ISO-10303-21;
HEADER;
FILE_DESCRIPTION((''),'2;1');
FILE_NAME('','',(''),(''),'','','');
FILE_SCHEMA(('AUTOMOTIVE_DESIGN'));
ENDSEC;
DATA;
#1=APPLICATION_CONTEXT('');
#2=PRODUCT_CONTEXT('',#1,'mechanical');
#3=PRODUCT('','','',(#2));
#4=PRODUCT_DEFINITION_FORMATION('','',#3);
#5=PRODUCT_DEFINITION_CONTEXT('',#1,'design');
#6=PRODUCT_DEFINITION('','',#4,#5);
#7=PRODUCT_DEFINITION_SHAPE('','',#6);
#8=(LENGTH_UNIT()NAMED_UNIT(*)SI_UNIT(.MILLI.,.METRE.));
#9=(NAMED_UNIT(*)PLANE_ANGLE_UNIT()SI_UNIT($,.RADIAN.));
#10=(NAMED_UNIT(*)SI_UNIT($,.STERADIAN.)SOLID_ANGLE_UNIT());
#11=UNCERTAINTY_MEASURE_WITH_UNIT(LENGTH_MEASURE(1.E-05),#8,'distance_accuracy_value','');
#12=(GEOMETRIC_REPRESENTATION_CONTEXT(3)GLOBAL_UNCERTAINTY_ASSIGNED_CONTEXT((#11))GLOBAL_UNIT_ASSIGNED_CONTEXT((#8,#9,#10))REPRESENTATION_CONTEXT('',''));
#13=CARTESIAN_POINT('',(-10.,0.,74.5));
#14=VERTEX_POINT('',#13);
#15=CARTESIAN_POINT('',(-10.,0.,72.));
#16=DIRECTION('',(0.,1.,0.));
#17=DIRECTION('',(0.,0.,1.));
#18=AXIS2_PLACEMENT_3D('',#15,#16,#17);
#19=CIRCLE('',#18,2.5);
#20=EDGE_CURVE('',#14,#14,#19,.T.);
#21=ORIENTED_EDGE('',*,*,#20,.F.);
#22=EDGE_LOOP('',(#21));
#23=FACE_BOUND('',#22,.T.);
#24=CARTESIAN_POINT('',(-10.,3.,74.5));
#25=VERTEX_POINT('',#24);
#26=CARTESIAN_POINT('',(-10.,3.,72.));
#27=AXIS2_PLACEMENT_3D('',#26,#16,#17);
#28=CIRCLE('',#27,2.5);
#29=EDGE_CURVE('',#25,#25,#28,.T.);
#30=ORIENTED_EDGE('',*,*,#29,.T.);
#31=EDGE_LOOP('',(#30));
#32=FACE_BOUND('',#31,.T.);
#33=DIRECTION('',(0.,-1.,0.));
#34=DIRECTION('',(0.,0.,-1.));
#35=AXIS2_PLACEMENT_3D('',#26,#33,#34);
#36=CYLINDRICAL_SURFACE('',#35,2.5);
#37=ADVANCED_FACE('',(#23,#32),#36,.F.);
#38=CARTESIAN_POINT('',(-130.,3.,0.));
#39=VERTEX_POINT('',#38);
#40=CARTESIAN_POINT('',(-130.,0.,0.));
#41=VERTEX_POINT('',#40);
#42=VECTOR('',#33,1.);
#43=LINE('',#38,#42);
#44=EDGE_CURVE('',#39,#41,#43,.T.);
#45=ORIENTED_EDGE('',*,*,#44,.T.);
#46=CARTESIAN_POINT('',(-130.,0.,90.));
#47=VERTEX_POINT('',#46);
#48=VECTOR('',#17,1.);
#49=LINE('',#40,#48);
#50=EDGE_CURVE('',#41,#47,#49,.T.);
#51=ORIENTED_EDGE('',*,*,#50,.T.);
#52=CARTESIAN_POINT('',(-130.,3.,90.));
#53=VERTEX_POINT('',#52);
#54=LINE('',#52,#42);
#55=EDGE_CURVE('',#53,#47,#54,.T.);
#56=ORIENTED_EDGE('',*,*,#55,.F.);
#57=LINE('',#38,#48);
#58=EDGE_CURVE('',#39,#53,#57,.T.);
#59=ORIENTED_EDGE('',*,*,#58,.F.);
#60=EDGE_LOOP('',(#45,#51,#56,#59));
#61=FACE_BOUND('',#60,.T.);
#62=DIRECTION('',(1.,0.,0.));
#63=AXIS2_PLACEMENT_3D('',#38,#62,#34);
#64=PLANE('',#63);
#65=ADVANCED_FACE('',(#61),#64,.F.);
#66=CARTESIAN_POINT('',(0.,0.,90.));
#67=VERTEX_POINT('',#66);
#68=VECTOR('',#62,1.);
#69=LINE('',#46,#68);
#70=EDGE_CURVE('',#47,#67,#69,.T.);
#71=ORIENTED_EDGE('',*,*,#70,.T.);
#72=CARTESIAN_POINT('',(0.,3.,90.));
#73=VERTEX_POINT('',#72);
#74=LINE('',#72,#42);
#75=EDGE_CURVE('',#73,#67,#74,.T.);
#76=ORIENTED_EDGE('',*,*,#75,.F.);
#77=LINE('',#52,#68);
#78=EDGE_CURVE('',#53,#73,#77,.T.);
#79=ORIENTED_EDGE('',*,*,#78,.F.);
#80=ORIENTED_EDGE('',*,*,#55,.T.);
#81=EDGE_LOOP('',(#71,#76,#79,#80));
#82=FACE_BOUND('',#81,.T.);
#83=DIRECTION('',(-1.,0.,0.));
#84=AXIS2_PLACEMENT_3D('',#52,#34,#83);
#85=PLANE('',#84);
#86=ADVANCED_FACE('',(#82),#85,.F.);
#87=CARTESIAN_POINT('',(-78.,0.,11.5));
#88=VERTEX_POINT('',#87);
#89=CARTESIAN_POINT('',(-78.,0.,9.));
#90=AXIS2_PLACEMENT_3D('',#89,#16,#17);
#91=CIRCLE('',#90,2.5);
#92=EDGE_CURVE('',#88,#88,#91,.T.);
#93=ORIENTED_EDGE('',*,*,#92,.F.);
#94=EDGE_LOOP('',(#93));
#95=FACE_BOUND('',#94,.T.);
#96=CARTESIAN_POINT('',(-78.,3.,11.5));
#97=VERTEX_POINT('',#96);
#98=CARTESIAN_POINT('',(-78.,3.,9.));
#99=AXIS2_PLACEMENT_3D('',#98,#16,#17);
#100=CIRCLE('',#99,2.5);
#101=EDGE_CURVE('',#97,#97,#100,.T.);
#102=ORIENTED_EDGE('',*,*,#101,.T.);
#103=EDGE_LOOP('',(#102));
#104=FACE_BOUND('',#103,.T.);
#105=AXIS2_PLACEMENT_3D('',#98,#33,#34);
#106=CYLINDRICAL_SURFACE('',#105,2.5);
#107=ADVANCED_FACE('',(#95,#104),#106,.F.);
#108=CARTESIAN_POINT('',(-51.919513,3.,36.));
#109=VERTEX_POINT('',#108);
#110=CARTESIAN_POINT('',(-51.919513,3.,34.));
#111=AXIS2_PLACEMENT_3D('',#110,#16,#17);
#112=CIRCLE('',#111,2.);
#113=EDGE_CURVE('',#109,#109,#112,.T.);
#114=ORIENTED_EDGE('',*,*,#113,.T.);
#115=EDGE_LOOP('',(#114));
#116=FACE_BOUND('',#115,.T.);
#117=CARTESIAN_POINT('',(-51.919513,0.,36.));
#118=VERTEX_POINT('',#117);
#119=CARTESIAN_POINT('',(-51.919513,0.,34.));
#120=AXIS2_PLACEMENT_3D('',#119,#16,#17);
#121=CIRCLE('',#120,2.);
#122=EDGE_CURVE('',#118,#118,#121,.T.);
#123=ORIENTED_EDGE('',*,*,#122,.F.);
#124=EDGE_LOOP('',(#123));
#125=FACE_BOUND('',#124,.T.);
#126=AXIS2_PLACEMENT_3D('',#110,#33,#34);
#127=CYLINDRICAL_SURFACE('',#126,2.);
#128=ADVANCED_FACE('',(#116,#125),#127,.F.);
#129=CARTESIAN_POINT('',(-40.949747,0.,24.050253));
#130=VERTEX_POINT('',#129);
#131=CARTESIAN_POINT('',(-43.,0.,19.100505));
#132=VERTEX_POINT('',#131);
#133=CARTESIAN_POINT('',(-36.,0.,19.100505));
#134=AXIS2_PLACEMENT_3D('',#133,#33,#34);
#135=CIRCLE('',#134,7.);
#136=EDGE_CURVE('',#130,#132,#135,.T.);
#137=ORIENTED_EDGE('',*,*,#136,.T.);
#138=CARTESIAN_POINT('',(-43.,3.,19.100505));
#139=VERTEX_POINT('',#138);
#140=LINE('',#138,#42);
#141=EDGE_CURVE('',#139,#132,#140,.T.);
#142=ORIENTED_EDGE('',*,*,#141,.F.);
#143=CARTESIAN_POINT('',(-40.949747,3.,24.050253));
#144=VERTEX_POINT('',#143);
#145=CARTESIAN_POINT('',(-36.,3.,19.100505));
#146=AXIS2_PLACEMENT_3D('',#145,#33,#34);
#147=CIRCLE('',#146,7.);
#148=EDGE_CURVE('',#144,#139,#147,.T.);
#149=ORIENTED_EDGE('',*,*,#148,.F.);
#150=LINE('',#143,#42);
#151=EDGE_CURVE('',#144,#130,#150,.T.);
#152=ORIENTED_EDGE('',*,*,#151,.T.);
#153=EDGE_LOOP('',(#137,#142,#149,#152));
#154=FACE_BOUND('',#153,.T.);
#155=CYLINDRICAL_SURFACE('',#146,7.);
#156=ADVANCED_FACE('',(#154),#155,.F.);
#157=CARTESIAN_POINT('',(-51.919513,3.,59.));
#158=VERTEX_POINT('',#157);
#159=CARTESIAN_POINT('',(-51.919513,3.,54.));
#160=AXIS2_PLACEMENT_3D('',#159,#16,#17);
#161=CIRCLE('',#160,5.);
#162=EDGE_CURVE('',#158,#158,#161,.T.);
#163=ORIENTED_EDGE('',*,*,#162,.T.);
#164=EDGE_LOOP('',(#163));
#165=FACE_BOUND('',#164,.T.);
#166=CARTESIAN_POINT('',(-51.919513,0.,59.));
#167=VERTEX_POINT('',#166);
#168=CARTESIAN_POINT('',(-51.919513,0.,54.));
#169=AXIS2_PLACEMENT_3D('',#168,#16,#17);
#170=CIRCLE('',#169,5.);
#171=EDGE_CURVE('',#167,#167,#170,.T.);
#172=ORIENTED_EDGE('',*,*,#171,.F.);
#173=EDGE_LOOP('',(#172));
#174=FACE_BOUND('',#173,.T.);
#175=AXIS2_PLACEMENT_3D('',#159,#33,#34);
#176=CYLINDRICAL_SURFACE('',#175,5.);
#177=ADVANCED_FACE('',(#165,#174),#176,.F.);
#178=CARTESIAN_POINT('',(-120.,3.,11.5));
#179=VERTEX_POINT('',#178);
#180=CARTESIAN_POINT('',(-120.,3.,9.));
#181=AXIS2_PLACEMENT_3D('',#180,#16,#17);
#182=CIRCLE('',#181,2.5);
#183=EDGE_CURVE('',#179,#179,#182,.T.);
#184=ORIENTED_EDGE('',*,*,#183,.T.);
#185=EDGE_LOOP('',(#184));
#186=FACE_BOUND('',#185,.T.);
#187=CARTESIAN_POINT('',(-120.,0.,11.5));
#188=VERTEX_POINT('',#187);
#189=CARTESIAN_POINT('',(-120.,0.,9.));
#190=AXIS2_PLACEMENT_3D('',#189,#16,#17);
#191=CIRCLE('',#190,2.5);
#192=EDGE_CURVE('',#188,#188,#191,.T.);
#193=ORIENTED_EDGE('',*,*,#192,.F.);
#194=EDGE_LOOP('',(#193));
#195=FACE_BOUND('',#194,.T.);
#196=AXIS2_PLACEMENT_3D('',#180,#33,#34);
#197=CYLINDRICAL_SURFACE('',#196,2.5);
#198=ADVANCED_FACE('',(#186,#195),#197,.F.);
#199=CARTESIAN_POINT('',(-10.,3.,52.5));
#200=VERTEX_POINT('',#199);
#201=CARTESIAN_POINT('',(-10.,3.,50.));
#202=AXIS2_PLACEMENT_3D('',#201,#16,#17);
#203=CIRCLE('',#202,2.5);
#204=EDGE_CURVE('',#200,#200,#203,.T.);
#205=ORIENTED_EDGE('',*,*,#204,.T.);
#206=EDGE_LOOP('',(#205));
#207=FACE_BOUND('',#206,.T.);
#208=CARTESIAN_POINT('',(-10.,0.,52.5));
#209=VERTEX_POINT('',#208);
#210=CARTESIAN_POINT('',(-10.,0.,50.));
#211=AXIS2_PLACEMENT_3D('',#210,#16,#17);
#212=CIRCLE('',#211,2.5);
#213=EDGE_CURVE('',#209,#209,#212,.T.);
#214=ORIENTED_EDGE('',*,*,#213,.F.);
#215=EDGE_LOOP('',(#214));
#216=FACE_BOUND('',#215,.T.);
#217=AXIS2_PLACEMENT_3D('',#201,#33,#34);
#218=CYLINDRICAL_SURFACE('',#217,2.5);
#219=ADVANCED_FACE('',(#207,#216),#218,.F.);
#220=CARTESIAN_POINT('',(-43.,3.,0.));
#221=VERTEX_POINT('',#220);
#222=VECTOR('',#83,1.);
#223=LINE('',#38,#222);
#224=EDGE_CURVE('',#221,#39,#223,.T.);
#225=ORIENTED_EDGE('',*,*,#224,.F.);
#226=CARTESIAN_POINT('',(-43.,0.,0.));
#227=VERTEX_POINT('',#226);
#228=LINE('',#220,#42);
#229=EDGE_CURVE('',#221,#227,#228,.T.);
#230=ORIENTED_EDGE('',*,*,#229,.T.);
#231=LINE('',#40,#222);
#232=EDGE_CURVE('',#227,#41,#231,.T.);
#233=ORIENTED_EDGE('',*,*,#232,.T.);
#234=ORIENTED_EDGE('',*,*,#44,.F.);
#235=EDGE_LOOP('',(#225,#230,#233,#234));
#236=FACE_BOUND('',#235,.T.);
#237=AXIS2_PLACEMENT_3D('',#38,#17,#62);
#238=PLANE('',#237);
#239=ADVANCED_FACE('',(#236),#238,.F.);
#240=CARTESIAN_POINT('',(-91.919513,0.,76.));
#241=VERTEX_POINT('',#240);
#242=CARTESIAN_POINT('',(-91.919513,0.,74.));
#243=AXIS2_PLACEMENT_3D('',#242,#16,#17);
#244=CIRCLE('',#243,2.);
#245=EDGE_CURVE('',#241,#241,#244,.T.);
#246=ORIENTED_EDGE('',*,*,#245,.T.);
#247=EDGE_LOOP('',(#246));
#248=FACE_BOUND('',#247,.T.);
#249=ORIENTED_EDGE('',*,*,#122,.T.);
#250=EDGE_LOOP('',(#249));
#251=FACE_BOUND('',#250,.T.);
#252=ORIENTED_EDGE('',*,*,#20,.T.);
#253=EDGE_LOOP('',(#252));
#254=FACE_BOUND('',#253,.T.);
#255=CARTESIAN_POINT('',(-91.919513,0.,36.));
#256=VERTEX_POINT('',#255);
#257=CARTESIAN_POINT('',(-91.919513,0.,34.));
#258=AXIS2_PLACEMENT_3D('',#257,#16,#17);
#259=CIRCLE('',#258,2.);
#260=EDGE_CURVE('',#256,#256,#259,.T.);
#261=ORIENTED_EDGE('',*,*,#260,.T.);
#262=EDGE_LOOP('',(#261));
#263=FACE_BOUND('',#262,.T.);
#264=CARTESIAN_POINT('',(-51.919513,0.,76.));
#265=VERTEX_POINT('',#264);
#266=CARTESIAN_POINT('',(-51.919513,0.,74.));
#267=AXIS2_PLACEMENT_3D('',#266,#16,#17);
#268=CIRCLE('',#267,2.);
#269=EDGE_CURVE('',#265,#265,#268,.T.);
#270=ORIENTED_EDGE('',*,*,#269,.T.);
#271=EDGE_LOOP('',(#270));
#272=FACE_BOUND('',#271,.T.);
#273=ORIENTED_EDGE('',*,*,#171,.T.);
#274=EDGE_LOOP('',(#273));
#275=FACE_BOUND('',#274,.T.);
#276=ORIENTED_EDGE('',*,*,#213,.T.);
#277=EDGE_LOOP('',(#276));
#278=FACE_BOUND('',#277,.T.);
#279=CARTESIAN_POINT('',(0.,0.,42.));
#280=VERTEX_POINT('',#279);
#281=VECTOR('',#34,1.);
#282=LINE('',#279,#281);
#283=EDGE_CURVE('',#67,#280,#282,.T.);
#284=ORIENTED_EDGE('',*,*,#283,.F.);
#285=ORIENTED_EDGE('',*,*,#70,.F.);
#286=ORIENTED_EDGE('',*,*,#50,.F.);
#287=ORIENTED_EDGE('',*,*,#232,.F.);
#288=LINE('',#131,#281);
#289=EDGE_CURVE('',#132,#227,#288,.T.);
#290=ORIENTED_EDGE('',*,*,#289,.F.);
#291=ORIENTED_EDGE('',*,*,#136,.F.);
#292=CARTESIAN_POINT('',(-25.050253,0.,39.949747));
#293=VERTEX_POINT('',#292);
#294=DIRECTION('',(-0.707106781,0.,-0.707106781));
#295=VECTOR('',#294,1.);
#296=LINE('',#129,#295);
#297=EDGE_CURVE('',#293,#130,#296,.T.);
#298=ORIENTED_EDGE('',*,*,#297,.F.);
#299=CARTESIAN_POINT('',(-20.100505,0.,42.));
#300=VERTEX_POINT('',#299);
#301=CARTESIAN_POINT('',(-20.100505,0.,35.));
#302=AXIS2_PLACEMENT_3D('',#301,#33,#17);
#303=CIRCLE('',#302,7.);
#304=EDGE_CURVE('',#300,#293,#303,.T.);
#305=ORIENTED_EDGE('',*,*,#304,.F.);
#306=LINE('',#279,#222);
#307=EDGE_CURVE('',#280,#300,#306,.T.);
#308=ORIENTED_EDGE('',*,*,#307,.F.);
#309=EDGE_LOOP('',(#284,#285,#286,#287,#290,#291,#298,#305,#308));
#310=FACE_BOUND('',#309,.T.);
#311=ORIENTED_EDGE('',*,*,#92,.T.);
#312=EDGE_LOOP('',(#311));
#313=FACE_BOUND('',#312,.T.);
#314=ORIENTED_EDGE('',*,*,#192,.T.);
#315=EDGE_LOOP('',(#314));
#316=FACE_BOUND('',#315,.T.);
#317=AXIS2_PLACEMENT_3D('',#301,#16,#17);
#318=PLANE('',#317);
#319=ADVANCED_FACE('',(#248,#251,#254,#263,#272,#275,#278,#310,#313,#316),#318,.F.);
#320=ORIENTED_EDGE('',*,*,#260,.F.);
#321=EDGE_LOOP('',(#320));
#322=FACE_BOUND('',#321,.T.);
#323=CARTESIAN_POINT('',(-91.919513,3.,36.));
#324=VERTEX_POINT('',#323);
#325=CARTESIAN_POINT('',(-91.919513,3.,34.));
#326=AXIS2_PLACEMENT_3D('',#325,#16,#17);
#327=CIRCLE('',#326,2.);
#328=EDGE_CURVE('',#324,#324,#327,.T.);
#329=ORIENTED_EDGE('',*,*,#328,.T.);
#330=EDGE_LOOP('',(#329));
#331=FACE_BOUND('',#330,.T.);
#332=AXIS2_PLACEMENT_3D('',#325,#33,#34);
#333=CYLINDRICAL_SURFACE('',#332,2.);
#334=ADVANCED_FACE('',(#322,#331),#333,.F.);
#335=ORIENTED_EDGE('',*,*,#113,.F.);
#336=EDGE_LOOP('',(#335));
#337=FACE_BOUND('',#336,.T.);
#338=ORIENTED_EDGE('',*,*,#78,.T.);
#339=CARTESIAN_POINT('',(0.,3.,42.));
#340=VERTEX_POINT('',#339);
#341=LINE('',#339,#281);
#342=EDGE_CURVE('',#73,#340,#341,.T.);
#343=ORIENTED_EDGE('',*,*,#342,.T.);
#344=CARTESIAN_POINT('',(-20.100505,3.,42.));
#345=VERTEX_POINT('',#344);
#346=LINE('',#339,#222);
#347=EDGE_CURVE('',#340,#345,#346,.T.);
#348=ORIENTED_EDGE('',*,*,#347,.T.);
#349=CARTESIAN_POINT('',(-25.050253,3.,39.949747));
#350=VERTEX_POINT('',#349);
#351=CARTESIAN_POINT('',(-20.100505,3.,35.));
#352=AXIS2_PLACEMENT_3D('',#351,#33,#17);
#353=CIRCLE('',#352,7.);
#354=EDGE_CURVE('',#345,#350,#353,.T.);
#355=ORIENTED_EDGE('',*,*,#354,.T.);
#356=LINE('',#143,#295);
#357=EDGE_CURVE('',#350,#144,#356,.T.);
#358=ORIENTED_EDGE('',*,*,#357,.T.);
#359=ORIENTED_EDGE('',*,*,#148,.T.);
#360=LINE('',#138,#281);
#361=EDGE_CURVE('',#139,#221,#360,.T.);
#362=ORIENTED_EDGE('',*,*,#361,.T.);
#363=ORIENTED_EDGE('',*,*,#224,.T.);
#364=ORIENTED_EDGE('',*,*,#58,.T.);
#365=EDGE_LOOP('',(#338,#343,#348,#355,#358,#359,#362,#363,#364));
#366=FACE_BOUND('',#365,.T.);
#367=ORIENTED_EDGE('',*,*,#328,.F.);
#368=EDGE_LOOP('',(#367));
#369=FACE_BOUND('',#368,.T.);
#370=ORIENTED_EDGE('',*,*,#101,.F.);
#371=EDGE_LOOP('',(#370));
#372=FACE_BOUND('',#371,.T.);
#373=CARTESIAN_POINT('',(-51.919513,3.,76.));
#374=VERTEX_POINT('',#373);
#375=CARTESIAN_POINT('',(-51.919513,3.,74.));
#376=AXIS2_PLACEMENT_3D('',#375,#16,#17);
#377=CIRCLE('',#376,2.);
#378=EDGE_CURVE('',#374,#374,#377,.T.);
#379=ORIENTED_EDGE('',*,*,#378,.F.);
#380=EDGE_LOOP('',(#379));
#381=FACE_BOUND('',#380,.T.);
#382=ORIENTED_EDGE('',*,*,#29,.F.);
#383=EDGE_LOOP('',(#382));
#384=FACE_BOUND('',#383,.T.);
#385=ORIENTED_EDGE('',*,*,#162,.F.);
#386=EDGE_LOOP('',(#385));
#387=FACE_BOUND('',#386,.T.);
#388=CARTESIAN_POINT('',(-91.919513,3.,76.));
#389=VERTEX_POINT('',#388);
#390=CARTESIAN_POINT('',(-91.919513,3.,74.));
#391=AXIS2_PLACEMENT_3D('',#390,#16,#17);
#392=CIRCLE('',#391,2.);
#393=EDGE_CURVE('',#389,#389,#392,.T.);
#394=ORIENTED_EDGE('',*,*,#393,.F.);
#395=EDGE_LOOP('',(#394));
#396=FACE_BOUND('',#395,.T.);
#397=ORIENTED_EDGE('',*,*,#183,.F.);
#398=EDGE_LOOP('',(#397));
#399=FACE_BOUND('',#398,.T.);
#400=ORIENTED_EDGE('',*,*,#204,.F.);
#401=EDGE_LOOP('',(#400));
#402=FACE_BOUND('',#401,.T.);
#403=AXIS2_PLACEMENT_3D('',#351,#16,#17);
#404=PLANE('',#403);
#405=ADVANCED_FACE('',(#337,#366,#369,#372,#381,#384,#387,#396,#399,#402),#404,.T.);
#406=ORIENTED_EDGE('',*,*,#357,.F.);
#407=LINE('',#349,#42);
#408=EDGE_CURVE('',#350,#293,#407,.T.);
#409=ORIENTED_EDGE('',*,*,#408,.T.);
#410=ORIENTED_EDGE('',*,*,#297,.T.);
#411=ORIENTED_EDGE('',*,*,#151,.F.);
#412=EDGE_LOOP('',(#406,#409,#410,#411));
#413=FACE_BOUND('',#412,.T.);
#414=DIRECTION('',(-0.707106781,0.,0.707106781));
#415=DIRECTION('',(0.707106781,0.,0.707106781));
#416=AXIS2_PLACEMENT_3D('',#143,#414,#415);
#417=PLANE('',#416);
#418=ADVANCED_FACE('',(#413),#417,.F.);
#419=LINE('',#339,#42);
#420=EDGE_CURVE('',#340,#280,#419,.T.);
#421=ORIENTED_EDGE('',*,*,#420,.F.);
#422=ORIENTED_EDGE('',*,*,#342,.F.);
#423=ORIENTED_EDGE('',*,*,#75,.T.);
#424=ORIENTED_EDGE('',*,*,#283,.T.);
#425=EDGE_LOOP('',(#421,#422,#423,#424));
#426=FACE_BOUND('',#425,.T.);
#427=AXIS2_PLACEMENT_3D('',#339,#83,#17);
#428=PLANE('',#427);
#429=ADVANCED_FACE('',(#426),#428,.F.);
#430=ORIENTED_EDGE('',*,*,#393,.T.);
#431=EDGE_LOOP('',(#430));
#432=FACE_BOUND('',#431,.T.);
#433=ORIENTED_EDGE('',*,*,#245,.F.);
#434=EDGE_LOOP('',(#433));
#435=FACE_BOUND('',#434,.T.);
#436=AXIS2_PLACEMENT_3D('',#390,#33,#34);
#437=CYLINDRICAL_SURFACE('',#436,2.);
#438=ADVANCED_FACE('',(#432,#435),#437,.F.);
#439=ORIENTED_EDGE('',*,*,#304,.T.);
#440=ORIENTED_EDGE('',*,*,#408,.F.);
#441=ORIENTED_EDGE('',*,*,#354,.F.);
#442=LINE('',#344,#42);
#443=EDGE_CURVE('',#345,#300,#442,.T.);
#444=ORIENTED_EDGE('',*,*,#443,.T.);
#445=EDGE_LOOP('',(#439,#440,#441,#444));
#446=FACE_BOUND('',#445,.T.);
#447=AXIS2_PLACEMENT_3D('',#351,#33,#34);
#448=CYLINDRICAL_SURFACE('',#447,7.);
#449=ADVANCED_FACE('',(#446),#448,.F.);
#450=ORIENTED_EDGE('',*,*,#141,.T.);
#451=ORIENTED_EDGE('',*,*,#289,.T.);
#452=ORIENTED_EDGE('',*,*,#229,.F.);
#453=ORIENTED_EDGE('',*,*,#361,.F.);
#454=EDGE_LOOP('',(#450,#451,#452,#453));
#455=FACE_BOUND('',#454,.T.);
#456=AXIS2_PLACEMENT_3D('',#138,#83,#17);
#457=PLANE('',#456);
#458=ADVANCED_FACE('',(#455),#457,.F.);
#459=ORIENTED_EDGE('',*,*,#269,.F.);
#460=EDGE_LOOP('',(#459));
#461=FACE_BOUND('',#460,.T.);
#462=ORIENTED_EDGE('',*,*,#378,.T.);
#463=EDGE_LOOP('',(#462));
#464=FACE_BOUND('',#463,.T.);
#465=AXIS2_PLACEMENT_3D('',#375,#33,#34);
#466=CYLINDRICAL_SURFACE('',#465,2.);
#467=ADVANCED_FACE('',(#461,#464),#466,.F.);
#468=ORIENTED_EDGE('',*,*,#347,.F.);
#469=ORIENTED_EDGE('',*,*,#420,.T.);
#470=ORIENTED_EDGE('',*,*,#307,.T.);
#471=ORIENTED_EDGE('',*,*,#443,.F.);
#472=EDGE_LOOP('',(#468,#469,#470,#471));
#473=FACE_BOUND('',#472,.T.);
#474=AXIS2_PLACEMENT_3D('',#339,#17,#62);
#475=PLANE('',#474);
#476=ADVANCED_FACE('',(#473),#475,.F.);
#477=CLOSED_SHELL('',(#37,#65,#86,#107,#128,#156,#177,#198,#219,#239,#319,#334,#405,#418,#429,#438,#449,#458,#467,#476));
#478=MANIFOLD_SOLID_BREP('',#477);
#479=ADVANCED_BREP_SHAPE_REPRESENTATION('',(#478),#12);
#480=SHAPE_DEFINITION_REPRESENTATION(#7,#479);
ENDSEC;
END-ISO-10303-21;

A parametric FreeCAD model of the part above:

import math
import FreeCAD as App
import Part
import Sketcher

V = App.Vector
Q = App.Units.Quantity

doc = App.newDocument("Part")
body = doc.addObject("PartDesign::Body", "Body")

# Sketch on XZ plane
sketch1 = body.newObject("Sketcher::SketchObject", "Sketch")
sketch1.AttachmentSupport = (doc.getObject("XZ_Plane"), [""])
sketch1.MapMode = "FlatFace"
sketch1.addGeometry([
    Part.LineSegment(V(0, 42, 0), V(-20.1, 42, 0)),  # 0
    Part.ArcOfCircle(Part.Circle(V(-20.1, 35, 0), V(0, 0, 1), 7), math.radians(90), math.radians(135)),  # 1
    Part.LineSegment(V(-25.1, 39.9, 0), V(-40.9, 24.1, 0)),  # 2
    Part.ArcOfCircle(Part.Circle(V(-36, 19.1, 0), V(0, 0, 1), 7), math.radians(135), math.radians(180)),  # 3
    Part.LineSegment(V(-43, 19.1, 0), V(-43, 0, 0)),  # 4
    Part.LineSegment(V(-43, 0, 0), V(-130, 0, 0)),  # 5
    Part.LineSegment(V(-130, 0, 0), V(-130, 90, 0)),  # 6
    Part.LineSegment(V(-130, 90, 0), V(0, 90, 0)),  # 7
    Part.LineSegment(V(0, 90, 0), V(0, 42, 0)),  # 8
    Part.Circle(V(-10, 72, 0), V(0, 0, 1), 2.5),  # 9
    Part.Circle(V(-10, 50, 0), V(0, 0, 1), 2.5),  # 10
    Part.Circle(V(-120, 9, 0), V(0, 0, 1), 2.5),  # 11
    Part.Circle(V(-78, 9, 0), V(0, 0, 1), 2.5),  # 12
], False)
sketch1.addConstraint([
    Sketcher.Constraint("Tangent", 0, 2, 1, 1),
    Sketcher.Constraint("Tangent", 1, 2, 2, 1),
    Sketcher.Constraint("Tangent", 2, 2, 3, 1),
    Sketcher.Constraint("Tangent", 3, 2, 4, 1),
    Sketcher.Constraint("Coincident", 4, 2, 5, 1),
    Sketcher.Constraint("Coincident", 5, 2, 6, 1),
    Sketcher.Constraint("Coincident", 6, 2, 7, 1),
    Sketcher.Constraint("Coincident", 7, 2, 8, 1),
    Sketcher.Constraint("Coincident", 8, 2, 0, 1),
    Sketcher.Constraint("Horizontal", 0),
    Sketcher.Constraint("Vertical", 4),
    Sketcher.Constraint("Horizontal", 5),
    Sketcher.Constraint("Vertical", 6),
    Sketcher.Constraint("Horizontal", 7),
    Sketcher.Constraint("Vertical", 8),
    Sketcher.Constraint("Equal", 1, 3),
    Sketcher.Constraint("Equal", 9, 10),
    Sketcher.Constraint("Equal", 10, 11),
    Sketcher.Constraint("Equal", 11, 12),
    Sketcher.Constraint("PointOnObject", 4, 2, -1),
    Sketcher.Constraint("PointOnObject", 7, 2, -2),
    Sketcher.Constraint("Horizontal", 11, 3, 12, 3),
    Sketcher.Constraint("Vertical", 9, 3, 10, 3),
    Sketcher.Constraint("Diameter", 9, Q("5 mm")),
    Sketcher.Constraint("Radius", 1, Q("7 mm")),
    Sketcher.Constraint("DistanceX", 5, 2, 5, 1, Q("87 mm")),
    Sketcher.Constraint("DistanceX", 7, 1, 7, 2, Q("130 mm")),
    Sketcher.Constraint("DistanceY", 6, 1, 6, 2, Q("90 mm")),
    Sketcher.Constraint("DistanceY", 8, 2, 8, 1, Q("48 mm")),
    Sketcher.Constraint("Angle", 2, Q("-135 deg")),
    Sketcher.Constraint("DistanceX", 9, 3, -1, 1, Q("10 mm")),
    Sketcher.Constraint("DistanceY", -1, 1, 9, 3, Q("72 mm")),
    Sketcher.Constraint("DistanceY", -1, 1, 10, 3, Q("50 mm")),
    Sketcher.Constraint("DistanceX", 11, 3, -1, 1, Q("120 mm")),
    Sketcher.Constraint("DistanceY", -1, 1, 11, 3, Q("9 mm")),
    Sketcher.Constraint("DistanceX", 12, 3, -1, 1, Q("78 mm")),
    Sketcher.Constraint("Distance", 2, Q("22.485281 mm")),
])
pad1 = body.newObject("PartDesign::Pad", "Pad")
pad1.Profile = sketch1
pad1.Length = 3
pad1.Reversed = True

# Sketch on XZ plane
sketch2 = body.newObject("Sketcher::SketchObject", "Sketch001")
sketch2.AttachmentSupport = (doc.getObject("XZ_Plane"), [""])
sketch2.MapMode = "FlatFace"
sketch2.addGeometry([
    Part.Circle(V(-51.9, 74, 0), V(0, 0, 1), 2),  # 0
    Part.Circle(V(-51.9, 54, 0), V(0, 0, 1), 5),  # 1
    Part.Circle(V(-51.9, 34, 0), V(0, 0, 1), 2),  # 2
    Part.Circle(V(-91.9, 34, 0), V(0, 0, 1), 2),  # 3
    Part.Circle(V(-91.9, 74, 0), V(0, 0, 1), 2),  # 4
], False)
sketch2.addConstraint([
    Sketcher.Constraint("Equal", 0, 2),
    Sketcher.Constraint("Equal", 2, 3),
    Sketcher.Constraint("Equal", 3, 4),
    Sketcher.Constraint("Horizontal", 2, 3, 3, 3),
    Sketcher.Constraint("Horizontal", 0, 3, 4, 3),
    Sketcher.Constraint("Vertical", 0, 3, 1, 3),
    Sketcher.Constraint("Vertical", 1, 3, 2, 3),
    Sketcher.Constraint("Vertical", 3, 3, 4, 3),
    Sketcher.Constraint("Diameter", 0, Q("4 mm")),
    Sketcher.Constraint("Diameter", 1, Q("10 mm")),
    Sketcher.Constraint("DistanceY", -1, 1, 0, 3, Q("74 mm")),
    Sketcher.Constraint("DistanceY", -1, 1, 1, 3, Q("54 mm")),
    Sketcher.Constraint("DistanceY", -1, 1, 2, 3, Q("34 mm")),
    Sketcher.Constraint("DistanceX", 3, 3, 2, 3, Q("40 mm")),
    Sketcher.Constraint("DistanceX", 0, 3, -1, 1, Q("51.919513 mm")),
])
pocket1 = body.newObject("PartDesign::Pocket", "Pocket")
pocket1.Profile = sketch2
pocket1.Length = 3

doc.recompute()
